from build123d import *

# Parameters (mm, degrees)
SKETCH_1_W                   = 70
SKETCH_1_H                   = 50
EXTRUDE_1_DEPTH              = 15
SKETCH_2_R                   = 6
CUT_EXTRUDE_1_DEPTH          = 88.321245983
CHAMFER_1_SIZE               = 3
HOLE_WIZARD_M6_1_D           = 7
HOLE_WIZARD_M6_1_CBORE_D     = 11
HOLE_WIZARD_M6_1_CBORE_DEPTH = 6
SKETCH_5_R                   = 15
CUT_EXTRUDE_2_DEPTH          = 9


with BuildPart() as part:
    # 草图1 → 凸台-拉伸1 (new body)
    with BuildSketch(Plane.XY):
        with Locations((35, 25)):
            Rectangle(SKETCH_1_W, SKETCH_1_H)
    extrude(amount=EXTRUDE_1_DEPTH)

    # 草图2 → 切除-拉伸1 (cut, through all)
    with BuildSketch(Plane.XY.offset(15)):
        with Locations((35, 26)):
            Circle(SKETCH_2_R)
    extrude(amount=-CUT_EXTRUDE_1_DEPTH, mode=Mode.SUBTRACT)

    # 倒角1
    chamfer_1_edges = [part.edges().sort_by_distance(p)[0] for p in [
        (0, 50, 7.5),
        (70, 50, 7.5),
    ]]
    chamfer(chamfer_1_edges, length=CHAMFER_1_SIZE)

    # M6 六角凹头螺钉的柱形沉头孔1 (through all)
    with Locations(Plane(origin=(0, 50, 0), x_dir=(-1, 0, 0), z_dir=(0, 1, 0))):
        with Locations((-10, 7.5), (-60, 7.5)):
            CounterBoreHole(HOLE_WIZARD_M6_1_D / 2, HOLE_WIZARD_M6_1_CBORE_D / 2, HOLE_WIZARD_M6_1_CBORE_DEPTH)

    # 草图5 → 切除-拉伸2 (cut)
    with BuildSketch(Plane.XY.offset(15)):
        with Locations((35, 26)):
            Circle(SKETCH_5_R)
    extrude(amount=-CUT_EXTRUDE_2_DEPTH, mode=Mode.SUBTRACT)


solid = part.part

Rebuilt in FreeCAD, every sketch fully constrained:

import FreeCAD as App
import Part
import Sketcher


def edges_at(feature, points):
    """Names of the edges that pass closest to the given points."""
    edges = feature.Shape.Edges
    near = lambda p: min(range(len(edges)), key=lambda i: edges[i].distToShape(Part.Vertex(*p))[0])
    return sorted({f"Edge{near(p) + 1}" for p in points})

doc = App.newDocument("Part")
params = doc.addObject("Spreadsheet::Sheet", "Params")
for row, (alias, value) in enumerate([
    ("sketch1_width", "70 mm"),
    ("sketch1_height", "50 mm"),
    ("pad1_length", "15 mm"),
    ("sketch2_diameter", "12 mm"),
    ("chamfer_size", "3 mm"),
    ("sketch3_diameter", "7 mm"),
    ("hole_diameter", "7 mm"),
    ("hole_cbore_diameter", "11 mm"),
    ("hole_cbore_depth", "6 mm"),
    ("sketch4_diameter", "30 mm"),
    ("pocket2_length", "9 mm"),
], start=1):
    params.set(f"A{row}", alias)
    params.set(f"B{row}", "=" + value)
    params.setAlias(f"B{row}", alias)

body = doc.addObject("PartDesign::Body", "Body")

# Sketch on XY plane
sketch1 = body.newObject("Sketcher::SketchObject", "Sketch")
sketch1.AttachmentSupport = (doc.getObject("XY_Plane"), [""])
sketch1.MapMode = "FlatFace"
sketch1.addGeometry(Part.LineSegment(App.Vector(0, 50, 0), App.Vector(0, 0, 0)), False)
sketch1.addGeometry(Part.LineSegment(App.Vector(0, 0, 0), App.Vector(70, 0, 0)), False)
sketch1.addGeometry(Part.LineSegment(App.Vector(70, 0, 0), App.Vector(70, 50, 0)), False)
sketch1.addGeometry(Part.LineSegment(App.Vector(70, 50, 0), App.Vector(0, 50, 0)), False)
sketch1.addConstraint(Sketcher.Constraint("Coincident", 0, 2, 1, 1))
sketch1.addConstraint(Sketcher.Constraint("Coincident", 1, 2, 2, 1))
sketch1.addConstraint(Sketcher.Constraint("Coincident", 2, 2, 3, 1))
sketch1.addConstraint(Sketcher.Constraint("Coincident", 3, 2, 0, 1))
sketch1.addConstraint(Sketcher.Constraint("Vertical", 0))
sketch1.addConstraint(Sketcher.Constraint("Horizontal", 1))
sketch1.addConstraint(Sketcher.Constraint("Vertical", 2))
sketch1.addConstraint(Sketcher.Constraint("Horizontal", 3))
sketch1.addConstraint(Sketcher.Constraint("Coincident", 0, 2, -1, 1))
sketch1.addConstraint(Sketcher.Constraint("DistanceX", 1, 1, 1, 2, 70.0))
sketch1.addConstraint(Sketcher.Constraint("DistanceY", 0, 2, 0, 1, 50.0))
sketch1.setExpression("Constraints[9]", "Params.sketch1_width")
sketch1.setExpression("Constraints[10]", "Params.sketch1_height")
pad1 = body.newObject("PartDesign::Pad", "Pad")
pad1.Profile = sketch1
pad1.setExpression("Length", "Params.pad1_length")

# Sketch on XY plane
sketch2 = body.newObject("Sketcher::SketchObject", "Sketch001")
sketch2.AttachmentSupport = (doc.getObject("XY_Plane"), [""])
sketch2.MapMode = "FlatFace"
sketch2.AttachmentOffset = App.Placement(App.Vector(0, 0, 15), App.Rotation())
sketch2.addGeometry(Part.Circle(App.Vector(35, 26, 0), App.Vector(0, 0, 1), 6), False)
sketch2.addConstraint(Sketcher.Constraint("Diameter", 0, 12.0))
sketch2.addConstraint(Sketcher.Constraint("DistanceX", -1, 1, 0, 3, 35.0))
sketch2.addConstraint(Sketcher.Constraint("DistanceY", -1, 1, 0, 3, 26.0))
sketch2.setExpression("Constraints[0]", "Params.sketch2_diameter")
pocket1 = body.newObject("PartDesign::Pocket", "Pocket")
pocket1.Profile = sketch2
pocket1.Type = "ThroughAll"
doc.recompute()

chamfer = body.newObject("PartDesign::Chamfer", "Chamfer")
chamfer.Base = (pocket1, edges_at(pocket1, [(0, 50, 7.5), (70, 50, 7.5)]))
chamfer.setExpression("Size", "Params.chamfer_size")

# Sketch on XZ plane
sketch3 = body.newObject("Sketcher::SketchObject", "Sketch002")
sketch3.AttachmentSupport = (doc.getObject("XZ_Plane"), [""])
sketch3.MapMode = "FlatFace"
sketch3.AttachmentOffset = App.Placement(App.Vector(0, 0, -50), App.Rotation())
sketch3.addGeometry(Part.Circle(App.Vector(10, 7.5, 0), App.Vector(0, 0, 1), 3.5), False)
sketch3.addGeometry(Part.Circle(App.Vector(60, 7.5, 0), App.Vector(0, 0, 1), 3.5), False)
sketch3.addConstraint(Sketcher.Constraint("Equal", 0, 1))
sketch3.addConstraint(Sketcher.Constraint("Horizontal", 0, 3, 1, 3))
sketch3.addConstraint(Sketcher.Constraint("Diameter", 0, 7.0))
sketch3.addConstraint(Sketcher.Constraint("DistanceX", -1, 1, 0, 3, 10.0))
sketch3.addConstraint(Sketcher.Constraint("DistanceX", -1, 1, 1, 3, 60.0))
sketch3.addConstraint(Sketcher.Constraint("DistanceY", -1, 1, 0, 3, 7.5))
sketch3.setExpression("Constraints[2]", "Params.sketch3_diameter")
doc.recompute()
hole = body.newObject("PartDesign::Hole", "Hole")
hole.Profile = sketch3
hole.ThreadType = "None"
hole.setExpression("Diameter", "Params.hole_diameter")
hole.DepthType = "ThroughAll"
hole.HoleCutType = "Counterbore"
hole.setExpression("HoleCutDiameter", "Params.hole_cbore_diameter")
hole.setExpression("HoleCutDepth", "Params.hole_cbore_depth")
hole.Reversed = True

# Sketch on XY plane
sketch4 = body.newObject("Sketcher::SketchObject", "Sketch003")
sketch4.AttachmentSupport = (doc.getObject("XY_Plane"), [""])
sketch4.MapMode = "FlatFace"
sketch4.AttachmentOffset = App.Placement(App.Vector(0, 0, 15), App.Rotation())
sketch4.addGeometry(Part.Circle(App.Vector(35, 26, 0), App.Vector(0, 0, 1), 15), False)
sketch4.addConstraint(Sketcher.Constraint("Diameter", 0, 30.0))
sketch4.addConstraint(Sketcher.Constraint("DistanceX", -1, 1, 0, 3, 35.0))
sketch4.addConstraint(Sketcher.Constraint("DistanceY", -1, 1, 0, 3, 26.0))
sketch4.setExpression("Constraints[0]", "Params.sketch4_diameter")
pocket2 = body.newObject("PartDesign::Pocket", "Pocket001")
pocket2.Profile = sketch4
pocket2.setExpression("Length", "Params.pocket2_length")

doc.recompute()
